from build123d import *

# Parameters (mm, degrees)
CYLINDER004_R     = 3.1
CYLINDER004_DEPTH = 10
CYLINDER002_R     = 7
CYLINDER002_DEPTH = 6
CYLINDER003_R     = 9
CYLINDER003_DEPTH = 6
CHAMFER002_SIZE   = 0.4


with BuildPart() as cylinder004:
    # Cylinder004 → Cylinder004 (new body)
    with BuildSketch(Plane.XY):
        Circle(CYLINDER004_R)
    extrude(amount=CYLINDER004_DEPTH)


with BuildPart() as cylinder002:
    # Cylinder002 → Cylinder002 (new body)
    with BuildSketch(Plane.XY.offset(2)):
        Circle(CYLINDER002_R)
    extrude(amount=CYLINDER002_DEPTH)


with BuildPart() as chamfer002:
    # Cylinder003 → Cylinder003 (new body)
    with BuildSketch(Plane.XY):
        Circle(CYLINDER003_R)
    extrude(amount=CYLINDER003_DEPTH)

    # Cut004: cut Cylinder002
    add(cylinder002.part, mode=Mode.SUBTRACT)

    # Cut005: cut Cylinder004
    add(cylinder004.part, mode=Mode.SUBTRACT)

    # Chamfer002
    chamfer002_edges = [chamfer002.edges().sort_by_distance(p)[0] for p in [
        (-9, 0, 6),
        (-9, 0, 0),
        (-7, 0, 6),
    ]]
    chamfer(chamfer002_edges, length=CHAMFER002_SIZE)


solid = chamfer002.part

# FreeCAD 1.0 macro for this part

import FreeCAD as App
import Part
import Sketcher

V = App.Vector
Q = App.Units.Quantity


def edges_at(feature, points):
    """Names of the edges that pass closest to the given points."""
    edges = feature.Shape.Edges
    near = lambda p: min(range(len(edges)), key=lambda i: edges[i].distToShape(Part.Vertex(*p))[0])
    return sorted({f"Edge{near(p) + 1}" for p in points})

doc = App.newDocument("Part")
body = doc.addObject("PartDesign::Body", "Body")

sketch1 = body.newObject("Sketcher::SketchObject", "Sketch")
sketch1.AttachmentSupport = (doc.getObject("XY_Plane"), [""])
sketch1.MapMode = "FlatFace"
sketch1.addGeometry(Part.Circle(V(0, 0, 0), V(0, 0, 1), 3.1), False)
sketch1.addConstraint([
    Sketcher.Constraint("Coincident", 0, 3, -1, 1),
    Sketcher.Constraint("Diameter", 0, Q("6.2 mm")),
])
pad1 = body.newObject("PartDesign::Pad", "Pad")
pad1.Profile = sketch1
pad1.Length = 10
body2 = doc.addObject("PartDesign::Body", "Body001")

sketch2 = body2.newObject("Sketcher::SketchObject", "Sketch001")
sketch2.AttachmentSupport = (doc.getObject("XY_Plane001"), [""])
sketch2.MapMode = "FlatFace"
sketch2.AttachmentOffset = App.Placement(V(0, 0, 2), App.Rotation())
sketch2.addGeometry(Part.Circle(V(0, 0, 0), V(0, 0, 1), 7), False)
sketch2.addConstraint([
    Sketcher.Constraint("Coincident", 0, 3, -1, 1),
    Sketcher.Constraint("Diameter", 0, Q("14 mm")),
])
pad2 = body2.newObject("PartDesign::Pad", "Pad001")
pad2.Profile = sketch2
pad2.Length = 6
body3 = doc.addObject("PartDesign::Body", "Body002")

sketch3 = body3.newObject("Sketcher::SketchObject", "Sketch002")
sketch3.AttachmentSupport = (doc.getObject("XY_Plane002"), [""])
sketch3.MapMode = "FlatFace"
sketch3.addGeometry(Part.Circle(V(0, 0, 0), V(0, 0, 1), 9), False)
sketch3.addConstraint([
    Sketcher.Constraint("Coincident", 0, 3, -1, 1),
    Sketcher.Constraint("Diameter", 0, Q("18 mm")),
])
pad3 = body3.newObject("PartDesign::Pad", "Pad002")
pad3.Profile = sketch3
pad3.Length = 6
doc.recompute()

boolean = body3.newObject("PartDesign::Boolean", "Boolean")
boolean.Type = "Cut"
boolean.addObjects([body2])
doc.recompute()

boolean2 = body3.newObject("PartDesign::Boolean", "Boolean001")
boolean2.Type = "Cut"
boolean2.addObjects([body])
doc.recompute()

chamfer = body3.newObject("PartDesign::Chamfer", "Chamfer")
chamfer.Base = (boolean2, edges_at(boolean2, [(-9, 0, 6), (-9, 0, 0), (-7, 0, 6)]))
chamfer.Size = 0.4

doc.recompute()
